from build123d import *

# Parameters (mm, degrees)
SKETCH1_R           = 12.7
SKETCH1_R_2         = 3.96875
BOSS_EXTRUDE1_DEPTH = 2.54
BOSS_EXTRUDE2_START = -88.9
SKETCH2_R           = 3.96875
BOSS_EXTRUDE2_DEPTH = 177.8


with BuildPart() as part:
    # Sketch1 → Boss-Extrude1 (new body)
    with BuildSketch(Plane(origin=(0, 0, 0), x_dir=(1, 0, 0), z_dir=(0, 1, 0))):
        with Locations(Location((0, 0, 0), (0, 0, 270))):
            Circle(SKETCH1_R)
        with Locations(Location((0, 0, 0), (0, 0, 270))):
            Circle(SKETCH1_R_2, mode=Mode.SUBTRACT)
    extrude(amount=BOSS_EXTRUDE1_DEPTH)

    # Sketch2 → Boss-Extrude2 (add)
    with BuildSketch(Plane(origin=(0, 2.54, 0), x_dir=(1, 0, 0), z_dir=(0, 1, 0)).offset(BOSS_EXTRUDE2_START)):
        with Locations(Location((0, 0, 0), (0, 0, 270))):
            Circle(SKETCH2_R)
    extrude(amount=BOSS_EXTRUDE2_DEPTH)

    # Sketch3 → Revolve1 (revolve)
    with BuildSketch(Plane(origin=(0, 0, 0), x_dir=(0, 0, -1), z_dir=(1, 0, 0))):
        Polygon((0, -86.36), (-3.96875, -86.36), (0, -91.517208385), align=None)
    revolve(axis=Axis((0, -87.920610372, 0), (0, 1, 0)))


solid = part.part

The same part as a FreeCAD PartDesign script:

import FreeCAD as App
import Part
import Sketcher

V = App.Vector
Q = App.Units.Quantity


def add_polygon(sketch, points):
    """Adds a closed chain of lines whose ends are joined by coincident constraints."""
    first, n = sketch.GeometryCount, len(points)
    for a, b in zip(points, points[1:] + points[:1]):
        sketch.addGeometry(Part.LineSegment(App.Vector(*a, 0), App.Vector(*b, 0)), False)
    for i in range(n):
        sketch.addConstraint(Sketcher.Constraint("Coincident", first + i, 2, first + (i + 1) % n, 1))

doc = App.newDocument("Part")
body = doc.addObject("PartDesign::Body", "Body")

# Sketch on XZ plane
sketch1 = body.newObject("Sketcher::SketchObject", "Sketch")
sketch1.AttachmentSupport = (doc.getObject("XZ_Plane"), [""])
sketch1.MapMode = "FlatFace"
sketch1.addGeometry(Part.Circle(V(0, 0, 0), V(0, 0, 1), 12.7), False)
sketch1.addGeometry(Part.Circle(V(0, 0, 0), V(0, 0, 1), 4), False)
sketch1.addConstraint(Sketcher.Constraint("Coincident", 0, 3, -1, 1))
sketch1.addConstraint(Sketcher.Constraint("Coincident", 1, 3, -1, 1))
sketch1.addConstraint(Sketcher.Constraint("Diameter", 0, Q("1 in")))
sketch1.addConstraint(Sketcher.Constraint("Diameter", 1, Q("0.3125 in")))
pad1 = body.newObject("PartDesign::Pad", "Pad")
pad1.Profile = sketch1
pad1.Length = Q("0.1 in")
pad1.Reversed = True

# Sketch on XZ plane
sketch2 = body.newObject("Sketcher::SketchObject", "Sketch001")
sketch2.AttachmentSupport = (doc.getObject("XZ_Plane"), [""])
sketch2.MapMode = "FlatFace"
sketch2.AttachmentOffset = App.Placement(V(0, 0, 3.4 * 25.4), App.Rotation())
sketch2.addGeometry(Part.Circle(V(0, 0, 0), V(0, 0, 1), 4), False)
sketch2.addConstraint(Sketcher.Constraint("Coincident", 0, 3, -1, 1))
sketch2.addConstraint(Sketcher.Constraint("Diameter", 0, Q("0.3125 in")))
pad2 = body.newObject("PartDesign::Pad", "Pad001")
pad2.Profile = sketch2
pad2.Length = Q("7 in")
pad2.Reversed = True

# Sketch on YZ plane
sketch3 = body.newObject("Sketcher::SketchObject", "Sketch002")
sketch3.AttachmentSupport = (doc.getObject("YZ_Plane"), [""])
sketch3.MapMode = "FlatFace"
add_polygon(sketch3, [(-86.4, 0), (-86.4, 4), (-91.5, 0)])  # lines 0-2
sketch3.addConstraint(Sketcher.Constraint("Vertical", 0))
sketch3.addConstraint(Sketcher.Constraint("Horizontal", 2))
sketch3.addConstraint(Sketcher.Constraint("PointOnObject", 1, 2, -1))
sketch3.addConstraint(Sketcher.Constraint("DistanceX", 0, 2, -1, 1, Q("3.4 in")))
sketch3.addConstraint(Sketcher.Constraint("DistanceY", 0, 1, 0, 2, Q("0.15625 in")))
sketch3.addConstraint(Sketcher.Constraint("DistanceX", 2, 1, 2, 2, 5.157208))
revolution = body.newObject("PartDesign::Revolution", "Revolution")
revolution.Profile = sketch3
revolution.ReferenceAxis = (sketch3, ["H_Axis"])
revolution.Angle = 360

doc.recompute()
